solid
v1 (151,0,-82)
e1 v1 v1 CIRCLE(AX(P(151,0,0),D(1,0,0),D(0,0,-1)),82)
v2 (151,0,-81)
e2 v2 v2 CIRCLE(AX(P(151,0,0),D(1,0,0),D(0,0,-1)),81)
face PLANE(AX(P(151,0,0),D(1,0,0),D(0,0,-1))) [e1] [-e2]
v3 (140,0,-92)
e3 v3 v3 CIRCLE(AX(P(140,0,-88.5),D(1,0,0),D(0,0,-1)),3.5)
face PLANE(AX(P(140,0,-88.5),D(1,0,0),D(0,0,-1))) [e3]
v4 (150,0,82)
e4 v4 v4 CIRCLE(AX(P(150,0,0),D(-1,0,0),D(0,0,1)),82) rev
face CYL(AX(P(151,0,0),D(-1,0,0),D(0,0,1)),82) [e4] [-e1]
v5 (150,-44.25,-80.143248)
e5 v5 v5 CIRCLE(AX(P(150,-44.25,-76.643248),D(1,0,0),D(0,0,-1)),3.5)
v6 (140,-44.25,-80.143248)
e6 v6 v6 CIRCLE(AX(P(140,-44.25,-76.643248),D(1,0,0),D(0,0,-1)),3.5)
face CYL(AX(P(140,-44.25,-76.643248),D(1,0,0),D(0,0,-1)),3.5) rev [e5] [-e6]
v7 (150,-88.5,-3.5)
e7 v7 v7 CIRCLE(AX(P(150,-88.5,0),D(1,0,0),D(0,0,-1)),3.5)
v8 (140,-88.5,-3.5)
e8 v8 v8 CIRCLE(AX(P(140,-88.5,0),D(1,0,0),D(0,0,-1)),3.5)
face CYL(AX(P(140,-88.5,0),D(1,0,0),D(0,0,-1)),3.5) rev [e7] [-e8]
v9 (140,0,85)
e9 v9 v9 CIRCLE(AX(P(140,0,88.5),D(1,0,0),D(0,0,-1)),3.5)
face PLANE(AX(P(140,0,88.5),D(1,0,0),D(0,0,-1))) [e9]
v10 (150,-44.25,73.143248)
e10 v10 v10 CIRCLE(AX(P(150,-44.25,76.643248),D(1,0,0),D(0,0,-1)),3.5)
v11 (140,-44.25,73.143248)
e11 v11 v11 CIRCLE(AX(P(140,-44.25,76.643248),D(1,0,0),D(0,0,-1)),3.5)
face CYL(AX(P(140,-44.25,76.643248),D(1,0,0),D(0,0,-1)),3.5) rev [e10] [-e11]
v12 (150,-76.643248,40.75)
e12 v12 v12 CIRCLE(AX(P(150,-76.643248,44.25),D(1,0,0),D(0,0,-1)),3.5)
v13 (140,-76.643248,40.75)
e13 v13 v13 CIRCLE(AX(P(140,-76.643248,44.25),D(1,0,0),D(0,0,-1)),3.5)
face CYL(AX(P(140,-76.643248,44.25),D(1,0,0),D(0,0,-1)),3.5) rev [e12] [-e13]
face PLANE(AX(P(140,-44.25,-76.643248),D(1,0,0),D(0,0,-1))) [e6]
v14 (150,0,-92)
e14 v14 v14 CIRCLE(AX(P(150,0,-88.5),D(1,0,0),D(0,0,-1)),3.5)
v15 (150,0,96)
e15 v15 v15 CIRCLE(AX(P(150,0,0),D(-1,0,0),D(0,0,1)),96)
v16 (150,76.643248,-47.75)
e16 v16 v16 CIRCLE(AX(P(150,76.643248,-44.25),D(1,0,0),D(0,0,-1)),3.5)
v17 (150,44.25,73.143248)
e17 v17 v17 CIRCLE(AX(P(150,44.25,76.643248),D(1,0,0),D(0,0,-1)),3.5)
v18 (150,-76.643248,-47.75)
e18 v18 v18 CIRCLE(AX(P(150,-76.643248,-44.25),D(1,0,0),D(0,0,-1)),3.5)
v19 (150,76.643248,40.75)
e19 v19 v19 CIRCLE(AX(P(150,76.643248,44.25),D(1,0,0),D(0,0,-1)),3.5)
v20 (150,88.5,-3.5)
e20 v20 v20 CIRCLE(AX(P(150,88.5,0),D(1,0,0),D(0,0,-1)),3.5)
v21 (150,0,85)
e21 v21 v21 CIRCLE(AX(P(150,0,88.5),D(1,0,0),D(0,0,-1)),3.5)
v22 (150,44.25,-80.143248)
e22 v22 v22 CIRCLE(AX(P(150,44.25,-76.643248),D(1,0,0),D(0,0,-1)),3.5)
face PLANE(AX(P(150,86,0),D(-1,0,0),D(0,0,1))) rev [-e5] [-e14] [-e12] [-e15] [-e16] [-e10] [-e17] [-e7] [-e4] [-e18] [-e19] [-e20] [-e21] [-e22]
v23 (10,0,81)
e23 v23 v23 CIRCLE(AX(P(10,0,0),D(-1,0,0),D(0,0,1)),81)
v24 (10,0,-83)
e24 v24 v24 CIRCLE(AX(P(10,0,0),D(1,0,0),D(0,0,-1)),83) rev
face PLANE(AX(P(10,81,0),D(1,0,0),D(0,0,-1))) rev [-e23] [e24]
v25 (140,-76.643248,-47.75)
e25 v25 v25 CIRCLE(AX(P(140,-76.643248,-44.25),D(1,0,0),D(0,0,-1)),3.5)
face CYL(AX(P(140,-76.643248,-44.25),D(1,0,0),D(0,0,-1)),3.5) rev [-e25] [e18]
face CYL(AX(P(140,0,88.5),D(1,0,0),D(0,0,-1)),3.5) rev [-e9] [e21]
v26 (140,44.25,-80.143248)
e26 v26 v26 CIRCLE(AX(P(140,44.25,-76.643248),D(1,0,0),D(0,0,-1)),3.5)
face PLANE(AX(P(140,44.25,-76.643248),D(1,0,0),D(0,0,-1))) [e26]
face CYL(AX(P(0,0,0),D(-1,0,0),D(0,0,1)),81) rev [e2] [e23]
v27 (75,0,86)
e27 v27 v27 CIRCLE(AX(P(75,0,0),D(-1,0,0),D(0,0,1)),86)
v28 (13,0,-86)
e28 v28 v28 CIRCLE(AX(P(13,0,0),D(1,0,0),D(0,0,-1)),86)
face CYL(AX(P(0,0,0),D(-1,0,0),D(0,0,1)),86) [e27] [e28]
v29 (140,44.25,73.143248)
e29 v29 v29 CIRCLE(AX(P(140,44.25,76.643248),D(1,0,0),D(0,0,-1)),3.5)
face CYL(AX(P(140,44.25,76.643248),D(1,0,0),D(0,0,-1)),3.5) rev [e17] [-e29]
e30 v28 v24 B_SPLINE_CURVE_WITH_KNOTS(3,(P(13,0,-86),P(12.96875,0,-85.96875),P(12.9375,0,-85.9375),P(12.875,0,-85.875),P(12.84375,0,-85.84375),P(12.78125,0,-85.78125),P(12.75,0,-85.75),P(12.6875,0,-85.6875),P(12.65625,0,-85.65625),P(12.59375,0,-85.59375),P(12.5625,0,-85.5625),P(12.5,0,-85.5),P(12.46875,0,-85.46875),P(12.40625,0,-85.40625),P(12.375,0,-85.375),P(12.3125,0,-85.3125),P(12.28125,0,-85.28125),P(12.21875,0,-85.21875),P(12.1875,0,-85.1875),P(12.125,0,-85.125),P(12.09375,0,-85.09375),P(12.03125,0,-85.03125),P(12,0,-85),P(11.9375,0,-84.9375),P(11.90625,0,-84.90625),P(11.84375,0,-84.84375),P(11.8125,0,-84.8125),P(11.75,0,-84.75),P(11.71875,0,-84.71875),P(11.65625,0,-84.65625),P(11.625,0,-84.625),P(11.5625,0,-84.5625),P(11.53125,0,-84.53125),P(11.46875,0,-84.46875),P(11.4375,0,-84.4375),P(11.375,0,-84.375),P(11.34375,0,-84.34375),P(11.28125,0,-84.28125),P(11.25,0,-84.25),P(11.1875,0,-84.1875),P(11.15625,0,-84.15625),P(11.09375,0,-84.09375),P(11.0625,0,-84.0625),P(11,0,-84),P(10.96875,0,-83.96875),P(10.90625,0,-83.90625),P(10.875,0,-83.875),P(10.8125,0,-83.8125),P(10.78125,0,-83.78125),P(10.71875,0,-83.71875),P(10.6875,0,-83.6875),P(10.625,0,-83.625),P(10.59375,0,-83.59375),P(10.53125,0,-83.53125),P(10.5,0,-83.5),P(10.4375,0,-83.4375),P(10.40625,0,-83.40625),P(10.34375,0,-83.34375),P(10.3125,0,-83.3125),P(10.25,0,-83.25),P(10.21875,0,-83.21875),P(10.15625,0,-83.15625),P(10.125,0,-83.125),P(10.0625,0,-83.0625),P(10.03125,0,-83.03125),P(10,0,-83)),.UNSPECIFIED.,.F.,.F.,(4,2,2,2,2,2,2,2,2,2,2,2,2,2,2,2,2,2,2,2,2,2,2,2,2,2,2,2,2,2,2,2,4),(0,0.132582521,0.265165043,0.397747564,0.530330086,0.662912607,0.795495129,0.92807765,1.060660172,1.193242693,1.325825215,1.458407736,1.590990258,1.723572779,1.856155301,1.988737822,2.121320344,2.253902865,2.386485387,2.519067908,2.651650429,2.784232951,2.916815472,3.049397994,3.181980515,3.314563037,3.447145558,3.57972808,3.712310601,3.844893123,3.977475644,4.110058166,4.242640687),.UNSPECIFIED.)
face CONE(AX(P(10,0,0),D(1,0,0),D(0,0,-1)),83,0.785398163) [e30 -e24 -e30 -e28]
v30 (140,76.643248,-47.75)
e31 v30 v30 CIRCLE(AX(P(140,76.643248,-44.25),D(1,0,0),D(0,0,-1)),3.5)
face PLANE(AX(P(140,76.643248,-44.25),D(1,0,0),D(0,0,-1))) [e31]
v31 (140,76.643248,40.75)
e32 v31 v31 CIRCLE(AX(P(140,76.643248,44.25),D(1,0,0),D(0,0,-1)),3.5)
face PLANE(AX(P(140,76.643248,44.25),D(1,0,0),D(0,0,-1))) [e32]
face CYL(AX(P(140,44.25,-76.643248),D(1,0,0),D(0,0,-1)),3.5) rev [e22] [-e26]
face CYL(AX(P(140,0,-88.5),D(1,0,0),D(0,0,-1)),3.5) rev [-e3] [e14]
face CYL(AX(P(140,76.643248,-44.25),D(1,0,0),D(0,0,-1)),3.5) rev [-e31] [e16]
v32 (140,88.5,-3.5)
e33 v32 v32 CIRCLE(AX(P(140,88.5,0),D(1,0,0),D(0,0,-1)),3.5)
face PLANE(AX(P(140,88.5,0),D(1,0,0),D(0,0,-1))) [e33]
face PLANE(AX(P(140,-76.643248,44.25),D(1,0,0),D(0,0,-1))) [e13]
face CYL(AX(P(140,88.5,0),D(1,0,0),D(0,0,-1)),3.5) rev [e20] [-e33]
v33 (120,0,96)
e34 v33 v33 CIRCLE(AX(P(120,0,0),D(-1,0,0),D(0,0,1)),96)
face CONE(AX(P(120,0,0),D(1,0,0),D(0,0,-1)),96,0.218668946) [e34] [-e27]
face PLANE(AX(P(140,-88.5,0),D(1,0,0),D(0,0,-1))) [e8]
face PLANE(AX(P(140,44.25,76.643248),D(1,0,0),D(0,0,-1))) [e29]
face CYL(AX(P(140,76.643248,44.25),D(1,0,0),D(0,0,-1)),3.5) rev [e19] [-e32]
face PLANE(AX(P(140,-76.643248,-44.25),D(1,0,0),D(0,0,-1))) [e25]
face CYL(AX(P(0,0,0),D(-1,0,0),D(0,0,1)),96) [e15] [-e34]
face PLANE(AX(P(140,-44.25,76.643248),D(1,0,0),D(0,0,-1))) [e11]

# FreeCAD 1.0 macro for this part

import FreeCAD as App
import Part
import Sketcher


def edges_at(feature, points):
    """Names of the edges that pass closest to the given points."""
    edges = feature.Shape.Edges
    near = lambda p: min(range(len(edges)), key=lambda i: edges[i].distToShape(Part.Vertex(*p))[0])
    return sorted({f"Edge{near(p) + 1}" for p in points})

doc = App.newDocument("Part")
params = doc.addObject("Spreadsheet::Sheet", "Params")
for row, (alias, value) in enumerate([
    ("sketch1_width", "140 mm"),
    ("sketch1_width2", "30 mm"),
    ("sketch1_width3", "65 mm"),
    ("sketch1_height", "15 mm"),
    ("sketch1_height2", "5 mm"),
    ("revolution_angle", "360 deg"),
    ("chamfer_size", "3 mm"),
    ("sketch2_diameter", "7 mm"),
    ("pocket1_length", "10 mm"),
    ("sketch3_diameter", "164 mm"),
    ("sketch3_diameter2", "162 mm"),
    ("pad1_length", "1 mm"),
], start=1):
    params.set(f"A{row}", alias)
    params.set(f"B{row}", "=" + value)
    params.setAlias(f"B{row}", alias)

body = doc.addObject("PartDesign::Body", "Body")

# Sketch on XY plane
sketch1 = body.newObject("Sketcher::SketchObject", "Sketch")
sketch1.AttachmentSupport = (doc.getObject("XY_Plane"), [""])
sketch1.MapMode = "FlatFace"
sketch1.addGeometry(Part.LineSegment(App.Vector(10, 81, 0), App.Vector(150, 81, 0)), False)
sketch1.addGeometry(Part.LineSegment(App.Vector(150, 81, 0), App.Vector(150, 96, 0)), False)
sketch1.addGeometry(Part.LineSegment(App.Vector(150, 96, 0), App.Vector(120, 96, 0)), False)
sketch1.addGeometry(Part.LineSegment(App.Vector(120, 96, 0), App.Vector(75, 86, 0)), False)
sketch1.addGeometry(Part.LineSegment(App.Vector(75, 86, 0), App.Vector(10, 86, 0)), False)
sketch1.addGeometry(Part.LineSegment(App.Vector(10, 86, 0), App.Vector(10, 81, 0)), False)
sketch1.addConstraint(Sketcher.Constraint("Coincident", 0, 2, 1, 1))
sketch1.addConstraint(Sketcher.Constraint("Coincident", 1, 2, 2, 1))
sketch1.addConstraint(Sketcher.Constraint("Coincident", 2, 2, 3, 1))
sketch1.addConstraint(Sketcher.Constraint("Coincident", 3, 2, 4, 1))
sketch1.addConstraint(Sketcher.Constraint("Coincident", 4, 2, 5, 1))
sketch1.addConstraint(Sketcher.Constraint("Coincident", 5, 2, 0, 1))
sketch1.addConstraint(Sketcher.Constraint("Horizontal", 0))
sketch1.addConstraint(Sketcher.Constraint("Vertical", 1))
sketch1.addConstraint(Sketcher.Constraint("Horizontal", 2))
sketch1.addConstraint(Sketcher.Constraint("Horizontal", 4))
sketch1.addConstraint(Sketcher.Constraint("Vertical", 5))
sketch1.addConstraint(Sketcher.Constraint("DistanceX", 0, 1, 0, 2, 140.0))
sketch1.addConstraint(Sketcher.Constraint("DistanceX", 2, 2, 2, 1, 30.0))
sketch1.addConstraint(Sketcher.Constraint("DistanceX", 4, 2, 4, 1, 65.0))
sketch1.addConstraint(Sketcher.Constraint("DistanceY", 1, 1, 1, 2, 15.0))
sketch1.addConstraint(Sketcher.Constraint("DistanceY", 5, 2, 5, 1, 5.0))
sketch1.addConstraint(Sketcher.Constraint("DistanceX", -1, 1, 0, 2, 150.0))
sketch1.addConstraint(Sketcher.Constraint("DistanceY", -1, 1, 0, 2, 81.0))
sketch1.setExpression("Constraints[11]", "Params.sketch1_width")
sketch1.setExpression("Constraints[12]", "Params.sketch1_width2")
sketch1.setExpression("Constraints[13]", "Params.sketch1_width3")
sketch1.setExpression("Constraints[14]", "Params.sketch1_height")
sketch1.setExpression("Constraints[15]", "Params.sketch1_height2")
revolution = body.newObject("PartDesign::Revolution", "Revolution")
revolution.Profile = sketch1
revolution.ReferenceAxis = (sketch1, ["H_Axis"])
revolution.setExpression("Angle", "Params.revolution_angle")
doc.recompute()

chamfer = body.newObject("PartDesign::Chamfer", "Chamfer")
chamfer.Base = (revolution, edges_at(revolution, [(10, 0, -86)]))
chamfer.setExpression("Size", "Params.chamfer_size")

# Sketch on YZ plane
sketch2 = body.newObject("Sketcher::SketchObject", "Sketch001")
sketch2.AttachmentSupport = (doc.getObject("YZ_Plane"), [""])
sketch2.MapMode = "FlatFace"
sketch2.AttachmentOffset = App.Placement(App.Vector(0, 0, 150), App.Rotation())
sketch2.addGeometry(Part.Circle(App.Vector(76.6, -44.2, 0), App.Vector(0, 0, 1), 3.5), False)
sketch2.addGeometry(Part.Circle(App.Vector(88.5, 0, 0), App.Vector(0, 0, 1), 3.5), False)
sketch2.addGeometry(Part.Circle(App.Vector(44.2, -76.6, 0), App.Vector(0, 0, 1), 3.5), False)
sketch2.addGeometry(Part.Circle(App.Vector(0, -88.5, 0), App.Vector(0, 0, 1), 3.5), False)
sketch2.addGeometry(Part.Circle(App.Vector(-44.2, -76.6, 0), App.Vector(0, 0, 1), 3.5), False)
sketch2.addGeometry(Part.Circle(App.Vector(-76.6, -44.2, 0), App.Vector(0, 0, 1), 3.5), False)
sketch2.addGeometry(Part.Circle(App.Vector(-88.5, 0, 0), App.Vector(0, 0, 1), 3.5), False)
sketch2.addGeometry(Part.Circle(App.Vector(-76.6, 44.2, 0), App.Vector(0, 0, 1), 3.5), False)
sketch2.addGeometry(Part.Circle(App.Vector(-44.2, 76.6, 0), App.Vector(0, 0, 1), 3.5), False)
sketch2.addGeometry(Part.Circle(App.Vector(0, 88.5, 0), App.Vector(0, 0, 1), 3.5), False)
sketch2.addGeometry(Part.Circle(App.Vector(44.2, 76.6, 0), App.Vector(0, 0, 1), 3.5), False)
sketch2.addGeometry(Part.Circle(App.Vector(76.6, 44.2, 0), App.Vector(0, 0, 1), 3.5), False)
sketch2.addConstraint(Sketcher.Constraint("Equal", 0, 1))
sketch2.addConstraint(Sketcher.Constraint("Equal", 1, 2))
sketch2.addConstraint(Sketcher.Constraint("Equal", 2, 3))
sketch2.addConstraint(Sketcher.Constraint("Equal", 3, 4))
sketch2.addConstraint(Sketcher.Constraint("Equal", 4, 5))
sketch2.addConstraint(Sketcher.Constraint("Equal", 5, 6))
sketch2.addConstraint(Sketcher.Constraint("Equal", 6, 7))
sketch2.addConstraint(Sketcher.Constraint("Equal", 7, 8))
sketch2.addConstraint(Sketcher.Constraint("Equal", 8, 9))
sketch2.addConstraint(Sketcher.Constraint("Equal", 9, 10))
sketch2.addConstraint(Sketcher.Constraint("Equal", 10, 11))
sketch2.addConstraint(Sketcher.Constraint("Symmetric", 1, 3, 6, 3, -1, 1))
sketch2.addConstraint(Sketcher.Constraint("Symmetric", 0, 3, 7, 3, -1, 1))
sketch2.addConstraint(Sketcher.Constraint("Symmetric", 2, 3, 8, 3, -1, 1))
sketch2.addConstraint(Sketcher.Constraint("Symmetric", 3, 3, 9, 3, -1, 1))
sketch2.addConstraint(Sketcher.Constraint("Symmetric", 4, 3, 10, 3, -1, 1))
sketch2.addConstraint(Sketcher.Constraint("Symmetric", 5, 3, 11, 3, -1, 1))
sketch2.addConstraint(Sketcher.Constraint("Symmetric", 2, 3, 4, 3, -2))
sketch2.addConstraint(Sketcher.Constraint("Symmetric", 0, 3, 5, 3, -2))
sketch2.addConstraint(Sketcher.Constraint("PointOnObject", 1, 3, -1))
sketch2.addConstraint(Sketcher.Constraint("PointOnObject", 3, 3, -2))
sketch2.addConstraint(Sketcher.Constraint("Diameter", 0, 7.0))
sketch2.addConstraint(Sketcher.Constraint("DistanceX", -1, 1, 1, 3, 88.5))
sketch2.addConstraint(Sketcher.Constraint("DistanceY", 3, 3, -1, 1, 88.5))
sketch2.addConstraint(Sketcher.Constraint("DistanceX", 4, 3, 2, 3, 88.5))
sketch2.addConstraint(Sketcher.Constraint("DistanceY", 5, 3, 7, 3, 88.5))
sketch2.addConstraint(Sketcher.Constraint("DistanceX", -1, 1, 0, 3, 76.643248))
sketch2.addConstraint(Sketcher.Constraint("DistanceY", 2, 3, -1, 1, 76.643248))
sketch2.setExpression("Constraints[21]", "Params.sketch2_diameter")
pocket1 = body.newObject("PartDesign::Pocket", "Pocket")
pocket1.Profile = sketch2
pocket1.setExpression("Length", "Params.pocket1_length")

# Sketch on YZ plane
sketch3 = body.newObject("Sketcher::SketchObject", "Sketch002")
sketch3.AttachmentSupport = (doc.getObject("YZ_Plane"), [""])
sketch3.MapMode = "FlatFace"
sketch3.AttachmentOffset = App.Placement(App.Vector(0, 0, 150), App.Rotation())
sketch3.addGeometry(Part.Circle(App.Vector(0, 0, 0), App.Vector(0, 0, 1), 82), False)
sketch3.addGeometry(Part.Circle(App.Vector(0, 0, 0), App.Vector(0, 0, 1), 81), False)
sketch3.addConstraint(Sketcher.Constraint("Coincident", 0, 3, -1, 1))
sketch3.addConstraint(Sketcher.Constraint("Coincident", 1, 3, -1, 1))
sketch3.addConstraint(Sketcher.Constraint("Diameter", 0, 164.0))
sketch3.addConstraint(Sketcher.Constraint("Diameter", 1, 162.0))
sketch3.setExpression("Constraints[2]", "Params.sketch3_diameter")
sketch3.setExpression("Constraints[3]", "Params.sketch3_diameter2")
pad1 = body.newObject("PartDesign::Pad", "Pad")
pad1.Profile = sketch3
pad1.setExpression("Length", "Params.pad1_length")

doc.recompute()
